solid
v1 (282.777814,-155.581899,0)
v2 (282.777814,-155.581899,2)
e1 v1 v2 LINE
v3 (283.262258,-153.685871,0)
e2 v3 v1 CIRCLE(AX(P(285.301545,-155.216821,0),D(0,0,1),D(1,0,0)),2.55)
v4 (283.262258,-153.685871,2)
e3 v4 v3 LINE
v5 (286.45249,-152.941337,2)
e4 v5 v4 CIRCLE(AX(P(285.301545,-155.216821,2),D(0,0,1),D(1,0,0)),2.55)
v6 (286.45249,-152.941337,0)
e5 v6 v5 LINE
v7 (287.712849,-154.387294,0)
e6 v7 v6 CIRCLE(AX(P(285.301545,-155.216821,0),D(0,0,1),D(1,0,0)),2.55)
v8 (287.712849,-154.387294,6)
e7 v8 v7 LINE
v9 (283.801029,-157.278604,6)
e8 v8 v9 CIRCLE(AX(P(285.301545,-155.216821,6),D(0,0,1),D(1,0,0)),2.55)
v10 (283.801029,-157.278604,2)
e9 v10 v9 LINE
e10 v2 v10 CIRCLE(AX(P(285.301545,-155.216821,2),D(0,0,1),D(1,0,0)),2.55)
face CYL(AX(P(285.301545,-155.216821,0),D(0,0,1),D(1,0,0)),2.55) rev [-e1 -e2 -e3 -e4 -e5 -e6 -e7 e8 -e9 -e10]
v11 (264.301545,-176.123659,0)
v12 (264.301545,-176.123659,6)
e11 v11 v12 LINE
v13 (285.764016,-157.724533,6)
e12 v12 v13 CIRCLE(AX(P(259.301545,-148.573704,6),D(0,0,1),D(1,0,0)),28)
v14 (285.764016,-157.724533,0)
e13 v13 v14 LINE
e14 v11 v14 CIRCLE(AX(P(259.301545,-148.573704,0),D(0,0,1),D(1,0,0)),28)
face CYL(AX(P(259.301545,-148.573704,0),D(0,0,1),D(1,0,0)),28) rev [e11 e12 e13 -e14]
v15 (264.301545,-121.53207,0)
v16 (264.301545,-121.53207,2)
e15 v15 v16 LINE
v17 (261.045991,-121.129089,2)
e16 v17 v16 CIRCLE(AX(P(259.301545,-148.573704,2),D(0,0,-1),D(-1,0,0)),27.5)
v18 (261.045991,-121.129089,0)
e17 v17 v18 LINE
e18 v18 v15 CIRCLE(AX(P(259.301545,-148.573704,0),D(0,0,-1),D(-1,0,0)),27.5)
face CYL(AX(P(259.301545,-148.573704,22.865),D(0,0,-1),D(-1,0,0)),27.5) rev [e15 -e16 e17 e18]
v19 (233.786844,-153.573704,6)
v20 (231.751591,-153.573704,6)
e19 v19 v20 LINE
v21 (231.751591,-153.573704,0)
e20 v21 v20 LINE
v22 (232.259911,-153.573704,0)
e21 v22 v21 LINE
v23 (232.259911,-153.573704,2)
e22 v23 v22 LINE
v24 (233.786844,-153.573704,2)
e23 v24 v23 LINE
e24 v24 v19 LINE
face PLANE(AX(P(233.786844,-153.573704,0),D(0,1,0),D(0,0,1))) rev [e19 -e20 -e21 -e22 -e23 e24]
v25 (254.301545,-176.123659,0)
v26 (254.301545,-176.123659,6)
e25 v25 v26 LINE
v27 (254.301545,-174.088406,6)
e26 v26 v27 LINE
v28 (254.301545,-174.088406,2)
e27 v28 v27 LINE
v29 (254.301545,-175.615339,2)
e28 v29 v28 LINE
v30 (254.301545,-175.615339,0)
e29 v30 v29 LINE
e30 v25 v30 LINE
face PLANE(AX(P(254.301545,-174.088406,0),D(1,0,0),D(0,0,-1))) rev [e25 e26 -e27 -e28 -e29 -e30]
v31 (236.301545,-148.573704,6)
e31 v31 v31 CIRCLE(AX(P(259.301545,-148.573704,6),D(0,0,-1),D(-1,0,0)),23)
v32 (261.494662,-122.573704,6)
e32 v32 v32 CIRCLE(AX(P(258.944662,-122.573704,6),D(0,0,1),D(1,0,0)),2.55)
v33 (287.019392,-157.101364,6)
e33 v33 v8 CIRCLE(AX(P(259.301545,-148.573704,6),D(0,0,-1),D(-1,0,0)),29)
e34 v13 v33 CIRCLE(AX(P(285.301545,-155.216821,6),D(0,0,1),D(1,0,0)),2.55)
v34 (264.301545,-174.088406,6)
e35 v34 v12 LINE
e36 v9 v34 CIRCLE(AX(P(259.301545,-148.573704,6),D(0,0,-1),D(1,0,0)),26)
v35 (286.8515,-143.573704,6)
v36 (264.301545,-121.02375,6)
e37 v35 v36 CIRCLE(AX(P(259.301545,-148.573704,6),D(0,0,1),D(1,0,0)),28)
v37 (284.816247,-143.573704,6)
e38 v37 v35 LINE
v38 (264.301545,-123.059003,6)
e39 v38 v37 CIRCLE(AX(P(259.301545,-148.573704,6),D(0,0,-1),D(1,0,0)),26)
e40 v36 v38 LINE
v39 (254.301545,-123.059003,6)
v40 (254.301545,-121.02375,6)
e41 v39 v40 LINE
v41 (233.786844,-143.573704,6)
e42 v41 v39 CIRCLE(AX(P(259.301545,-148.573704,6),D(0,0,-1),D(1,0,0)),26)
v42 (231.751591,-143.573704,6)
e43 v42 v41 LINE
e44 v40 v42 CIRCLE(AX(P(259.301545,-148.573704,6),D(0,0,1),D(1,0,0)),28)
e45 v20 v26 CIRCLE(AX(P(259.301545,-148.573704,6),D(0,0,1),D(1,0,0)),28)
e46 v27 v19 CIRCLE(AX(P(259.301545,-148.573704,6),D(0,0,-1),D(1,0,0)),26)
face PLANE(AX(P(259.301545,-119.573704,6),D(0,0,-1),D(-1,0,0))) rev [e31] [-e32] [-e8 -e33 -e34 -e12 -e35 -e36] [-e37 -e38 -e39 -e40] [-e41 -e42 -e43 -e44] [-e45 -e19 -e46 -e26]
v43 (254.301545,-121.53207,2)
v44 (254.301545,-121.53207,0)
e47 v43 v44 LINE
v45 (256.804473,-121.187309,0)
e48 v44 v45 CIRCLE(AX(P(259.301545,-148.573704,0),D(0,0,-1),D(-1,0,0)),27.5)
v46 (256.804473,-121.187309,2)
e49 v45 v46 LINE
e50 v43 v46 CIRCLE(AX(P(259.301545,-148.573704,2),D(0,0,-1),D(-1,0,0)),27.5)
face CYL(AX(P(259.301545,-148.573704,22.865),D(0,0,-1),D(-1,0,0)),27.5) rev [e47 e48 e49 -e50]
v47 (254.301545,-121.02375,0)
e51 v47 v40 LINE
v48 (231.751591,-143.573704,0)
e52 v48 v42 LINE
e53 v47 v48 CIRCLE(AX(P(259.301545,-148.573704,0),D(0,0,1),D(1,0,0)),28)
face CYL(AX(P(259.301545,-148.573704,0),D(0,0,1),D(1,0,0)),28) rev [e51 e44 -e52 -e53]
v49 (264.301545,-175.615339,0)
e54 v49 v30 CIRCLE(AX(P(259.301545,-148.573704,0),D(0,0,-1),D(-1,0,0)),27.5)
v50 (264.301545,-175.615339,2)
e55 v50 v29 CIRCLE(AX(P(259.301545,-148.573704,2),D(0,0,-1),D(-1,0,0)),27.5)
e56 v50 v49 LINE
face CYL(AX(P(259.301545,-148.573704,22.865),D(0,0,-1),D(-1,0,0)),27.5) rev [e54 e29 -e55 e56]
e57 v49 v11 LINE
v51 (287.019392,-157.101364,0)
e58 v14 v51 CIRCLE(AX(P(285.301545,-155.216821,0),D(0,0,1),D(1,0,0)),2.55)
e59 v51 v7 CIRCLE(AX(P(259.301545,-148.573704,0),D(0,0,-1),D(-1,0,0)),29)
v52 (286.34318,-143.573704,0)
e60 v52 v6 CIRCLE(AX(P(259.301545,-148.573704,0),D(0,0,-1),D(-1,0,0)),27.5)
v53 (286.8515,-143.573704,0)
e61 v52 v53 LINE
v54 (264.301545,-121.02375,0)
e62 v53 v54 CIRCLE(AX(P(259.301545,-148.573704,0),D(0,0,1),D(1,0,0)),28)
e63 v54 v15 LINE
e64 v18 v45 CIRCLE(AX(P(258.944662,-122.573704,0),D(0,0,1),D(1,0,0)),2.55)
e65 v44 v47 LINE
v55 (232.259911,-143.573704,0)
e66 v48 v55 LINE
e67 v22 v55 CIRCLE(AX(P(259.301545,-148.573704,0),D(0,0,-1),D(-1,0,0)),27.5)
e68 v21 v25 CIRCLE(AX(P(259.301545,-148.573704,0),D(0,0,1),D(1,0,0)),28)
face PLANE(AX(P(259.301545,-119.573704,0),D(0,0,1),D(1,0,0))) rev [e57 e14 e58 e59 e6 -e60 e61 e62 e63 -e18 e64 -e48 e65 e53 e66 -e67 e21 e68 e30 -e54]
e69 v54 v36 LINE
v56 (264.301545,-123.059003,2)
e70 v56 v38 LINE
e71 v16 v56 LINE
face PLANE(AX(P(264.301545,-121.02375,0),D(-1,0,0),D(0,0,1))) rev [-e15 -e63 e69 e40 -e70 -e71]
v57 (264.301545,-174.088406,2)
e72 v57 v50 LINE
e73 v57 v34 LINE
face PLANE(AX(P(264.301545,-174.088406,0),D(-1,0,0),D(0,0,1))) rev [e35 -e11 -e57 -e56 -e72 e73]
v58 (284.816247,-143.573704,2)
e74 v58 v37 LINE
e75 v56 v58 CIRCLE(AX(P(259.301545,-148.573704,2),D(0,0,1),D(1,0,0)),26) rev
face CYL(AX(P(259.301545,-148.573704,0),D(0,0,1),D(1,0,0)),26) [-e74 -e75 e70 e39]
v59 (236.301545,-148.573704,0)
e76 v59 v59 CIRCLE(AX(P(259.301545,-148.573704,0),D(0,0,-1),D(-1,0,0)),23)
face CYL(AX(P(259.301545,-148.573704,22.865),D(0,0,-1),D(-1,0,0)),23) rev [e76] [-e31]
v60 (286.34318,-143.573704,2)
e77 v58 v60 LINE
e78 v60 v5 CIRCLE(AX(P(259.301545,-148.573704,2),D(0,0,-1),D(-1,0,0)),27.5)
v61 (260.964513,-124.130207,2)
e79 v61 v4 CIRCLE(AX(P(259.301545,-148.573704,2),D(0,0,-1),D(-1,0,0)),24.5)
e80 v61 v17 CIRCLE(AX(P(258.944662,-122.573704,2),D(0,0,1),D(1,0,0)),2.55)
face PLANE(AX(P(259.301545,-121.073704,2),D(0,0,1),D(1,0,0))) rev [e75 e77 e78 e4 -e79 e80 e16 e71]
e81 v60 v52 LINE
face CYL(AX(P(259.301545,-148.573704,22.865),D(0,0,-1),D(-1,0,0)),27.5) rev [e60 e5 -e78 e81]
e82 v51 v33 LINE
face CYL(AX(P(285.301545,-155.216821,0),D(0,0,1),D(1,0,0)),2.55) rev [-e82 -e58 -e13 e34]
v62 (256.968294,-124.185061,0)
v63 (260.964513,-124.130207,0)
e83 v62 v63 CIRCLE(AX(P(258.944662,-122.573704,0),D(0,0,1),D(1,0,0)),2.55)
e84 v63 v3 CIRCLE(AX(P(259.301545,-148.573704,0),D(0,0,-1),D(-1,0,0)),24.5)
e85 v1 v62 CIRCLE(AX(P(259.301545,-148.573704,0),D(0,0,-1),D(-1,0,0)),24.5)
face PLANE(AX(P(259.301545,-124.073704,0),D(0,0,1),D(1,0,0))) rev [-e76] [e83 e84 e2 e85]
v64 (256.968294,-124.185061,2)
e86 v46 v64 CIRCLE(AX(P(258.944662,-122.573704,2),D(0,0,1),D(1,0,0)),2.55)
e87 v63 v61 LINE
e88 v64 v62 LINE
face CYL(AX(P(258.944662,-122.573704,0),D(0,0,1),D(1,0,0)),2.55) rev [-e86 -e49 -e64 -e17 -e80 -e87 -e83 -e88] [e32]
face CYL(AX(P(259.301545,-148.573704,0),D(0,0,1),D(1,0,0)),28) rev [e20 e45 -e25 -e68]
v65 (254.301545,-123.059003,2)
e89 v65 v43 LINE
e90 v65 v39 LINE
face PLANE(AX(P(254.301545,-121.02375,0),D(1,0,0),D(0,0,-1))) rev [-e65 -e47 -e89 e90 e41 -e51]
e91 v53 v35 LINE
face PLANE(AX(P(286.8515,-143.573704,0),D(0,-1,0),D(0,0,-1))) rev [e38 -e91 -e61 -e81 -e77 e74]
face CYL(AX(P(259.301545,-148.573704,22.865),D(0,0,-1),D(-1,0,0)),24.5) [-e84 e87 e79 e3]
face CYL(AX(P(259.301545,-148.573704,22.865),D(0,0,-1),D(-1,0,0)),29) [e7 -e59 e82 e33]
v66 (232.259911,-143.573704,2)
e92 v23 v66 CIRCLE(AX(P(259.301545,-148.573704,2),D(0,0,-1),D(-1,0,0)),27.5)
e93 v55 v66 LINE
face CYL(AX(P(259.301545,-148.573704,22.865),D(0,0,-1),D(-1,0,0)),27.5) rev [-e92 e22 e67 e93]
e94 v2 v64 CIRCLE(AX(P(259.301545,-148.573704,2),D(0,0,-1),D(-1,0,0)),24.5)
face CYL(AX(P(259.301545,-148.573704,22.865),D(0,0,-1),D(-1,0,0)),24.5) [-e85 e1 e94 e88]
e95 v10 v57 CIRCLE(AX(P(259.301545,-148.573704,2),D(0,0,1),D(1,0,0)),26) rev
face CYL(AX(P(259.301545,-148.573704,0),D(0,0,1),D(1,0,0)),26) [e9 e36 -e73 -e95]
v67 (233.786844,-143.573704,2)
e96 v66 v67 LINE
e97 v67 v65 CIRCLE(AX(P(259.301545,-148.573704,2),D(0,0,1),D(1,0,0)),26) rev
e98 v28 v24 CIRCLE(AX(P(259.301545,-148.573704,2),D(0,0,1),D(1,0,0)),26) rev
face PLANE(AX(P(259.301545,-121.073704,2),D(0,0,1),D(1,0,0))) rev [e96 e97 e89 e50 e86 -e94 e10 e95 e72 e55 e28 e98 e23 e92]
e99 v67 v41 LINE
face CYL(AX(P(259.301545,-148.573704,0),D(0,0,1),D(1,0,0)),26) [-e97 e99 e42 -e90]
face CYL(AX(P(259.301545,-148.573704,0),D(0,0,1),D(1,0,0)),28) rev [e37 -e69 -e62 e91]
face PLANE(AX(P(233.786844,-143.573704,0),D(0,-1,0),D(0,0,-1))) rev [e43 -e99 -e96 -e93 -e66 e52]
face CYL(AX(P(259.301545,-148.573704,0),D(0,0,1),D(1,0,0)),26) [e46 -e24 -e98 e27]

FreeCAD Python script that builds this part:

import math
import FreeCAD as App
import Part
import Sketcher
from FreeCAD import Vector
Q = App.Units.Quantity

doc = App.newDocument("Part")
body = doc.addObject("PartDesign::Body", "Body")

sketch1 = doc.addObject("Sketcher::SketchObject", "Sketch")
body.addObject(sketch1)
sketch1.AttachmentSupport = (doc.YZ_Plane, [""])
sketch1.MapMode = "FlatFace"
sketch1.AttachmentOffset = App.Placement(Vector(0, 0, 259.301545), App.Rotation())
sketch1.addGeometry([
    Part.LineSegment(Vector(-124.1, 0, 0), Vector(-125.6, 0, 0)),
    Part.LineSegment(Vector(-125.6, 0, 0), Vector(-125.6, 6, 0)),
    Part.LineSegment(Vector(-125.6, 6, 0), Vector(-119.6, 6, 0)),
    Part.LineSegment(Vector(-119.6, 6, 0), Vector(-119.6, 0, 0)),
    Part.LineSegment(Vector(-119.6, 0, 0), Vector(-121.1, 0, 0)),
    Part.LineSegment(Vector(-121.1, 0, 0), Vector(-121.1, 2, 0)),
    Part.LineSegment(Vector(-121.1, 2, 0), Vector(-124.1, 2, 0)),
    Part.LineSegment(Vector(-124.1, 2, 0), Vector(-124.1, 0, 0)),
], False)
sketch1.addGeometry(Part.LineSegment(Vector(-148.6, 0, 0), Vector(-148.6, 6, 0)), True)
sketch1.addConstraint([
    Sketcher.Constraint("Coincident", 0, 2, 1, 1),
    Sketcher.Constraint("Coincident", 1, 2, 2, 1),
    Sketcher.Constraint("Coincident", 2, 2, 3, 1),
    Sketcher.Constraint("Coincident", 3, 2, 4, 1),
    Sketcher.Constraint("Coincident", 4, 2, 5, 1),
    Sketcher.Constraint("Coincident", 5, 2, 6, 1),
    Sketcher.Constraint("Coincident", 6, 2, 7, 1),
    Sketcher.Constraint("Coincident", 7, 2, 0, 1),
    Sketcher.Constraint("Horizontal", 0),
    Sketcher.Constraint("Vertical", 1),
    Sketcher.Constraint("Horizontal", 2),
    Sketcher.Constraint("Vertical", 3),
    Sketcher.Constraint("Horizontal", 4),
    Sketcher.Constraint("Vertical", 5),
    Sketcher.Constraint("Horizontal", 6),
    Sketcher.Constraint("Vertical", 7),
    Sketcher.Constraint("Vertical", 8),
    Sketcher.Constraint("PointOnObject", 0, 2, -1),
    Sketcher.Constraint("PointOnObject", 3, 2, -1),
    Sketcher.Constraint("PointOnObject", 8, 1, -1),
    Sketcher.Constraint("Horizontal", 2, 2, 8, 2),
    Sketcher.Constraint("Equal", 0, 4),
    Sketcher.Constraint("Equal", 2, 1),
    Sketcher.Constraint("DistanceX", 2, 1, 2, 2, Q("6 mm")),
    Sketcher.Constraint("DistanceX", 6, 2, 6, 1, Q("3 mm")),
    Sketcher.Constraint("DistanceY", 5, 1, 5, 2, Q("2 mm")),
    Sketcher.Constraint("DistanceX", 8, 1, 0, 2, Q("23 mm")),
    Sketcher.Constraint("DistanceX", 0, 2, -1, 1, Q("125.573704 mm")),
])
revolution = doc.addObject("PartDesign::Revolution", "Revolution")
body.addObject(revolution)
revolution.Profile = sketch1
revolution.ReferenceAxis = (sketch1, ["Axis0"])
revolution.Angle = 360

sketch2 = doc.addObject("Sketcher::SketchObject", "Sketch001")
body.addObject(sketch2)
sketch2.AttachmentSupport = (doc.XY_Plane, [""])
sketch2.MapMode = "FlatFace"
sketch2.AttachmentOffset = App.Placement(Vector(0, 0, 6), App.Rotation())
sketch2.addGeometry([
    Part.LineSegment(Vector(254.3, -176.1, 0), Vector(254.3, -174.1, 0)),
    Part.ArcOfCircle(Part.Circle(Vector(259.3, -148.6, 0), Vector(0, 0, 1), 26), math.radians(-169), math.radians(-101)),
    Part.LineSegment(Vector(233.8, -153.6, 0), Vector(231.8, -153.6, 0)),
    Part.ArcOfCircle(Part.Circle(Vector(259.3, -148.6, 0), Vector(0, 0, 1), 28), math.radians(-170), math.radians(-100)),
    Part.LineSegment(Vector(264.3, -174.1, 0), Vector(264.3, -176.1, 0)),
    Part.ArcOfCircle(Part.Circle(Vector(259.3, -148.6, 0), Vector(0, 0, 1), 28), math.radians(-80), math.radians(-10)),
    Part.LineSegment(Vector(286.9, -153.6, 0), Vector(284.8, -153.6, 0)),
    Part.ArcOfCircle(Part.Circle(Vector(259.3, -148.6, 0), Vector(0, 0, 1), 26), math.radians(-79), math.radians(-11)),
    Part.LineSegment(Vector(284.8, -143.6, 0), Vector(286.9, -143.6, 0)),
    Part.ArcOfCircle(Part.Circle(Vector(259.3, -148.6, 0), Vector(0, 0, 1), 28), math.radians(10), math.radians(80)),
    Part.LineSegment(Vector(264.3, -121, 0), Vector(264.3, -123.1, 0)),
    Part.ArcOfCircle(Part.Circle(Vector(259.3, -148.6, 0), Vector(0, 0, 1), 26), math.radians(11), math.radians(79)),
    Part.LineSegment(Vector(254.3, -123.1, 0), Vector(254.3, -121, 0)),
    Part.ArcOfCircle(Part.Circle(Vector(259.3, -148.6, 0), Vector(0, 0, 1), 28), math.radians(100), math.radians(170)),
    Part.LineSegment(Vector(231.8, -143.6, 0), Vector(233.8, -143.6, 0)),
    Part.ArcOfCircle(Part.Circle(Vector(259.3, -148.6, 0), Vector(0, 0, 1), 26), math.radians(101), math.radians(169)),
], False)
sketch2.addConstraint([
    Sketcher.Constraint("Coincident", 0, 2, 1, 2),
    Sketcher.Constraint("Coincident", 1, 1, 2, 1),
    Sketcher.Constraint("Coincident", 2, 2, 3, 1),
    Sketcher.Constraint("Coincident", 3, 2, 0, 1),
    Sketcher.Constraint("Coincident", 4, 2, 5, 1),
    Sketcher.Constraint("Coincident", 5, 2, 6, 1),
    Sketcher.Constraint("Coincident", 6, 2, 7, 2),
    Sketcher.Constraint("Coincident", 7, 1, 4, 1),
    Sketcher.Constraint("Coincident", 8, 2, 9, 1),
    Sketcher.Constraint("Coincident", 9, 2, 10, 1),
    Sketcher.Constraint("Coincident", 10, 2, 11, 2),
    Sketcher.Constraint("Coincident", 11, 1, 8, 1),
    Sketcher.Constraint("Coincident", 12, 2, 13, 1),
    Sketcher.Constraint("Coincident", 13, 2, 14, 1),
    Sketcher.Constraint("Coincident", 14, 2, 15, 2),
    Sketcher.Constraint("Coincident", 15, 1, 12, 1),
    Sketcher.Constraint("Vertical", 0),
    Sketcher.Constraint("Horizontal", 2),
    Sketcher.Constraint("Vertical", 4),
    Sketcher.Constraint("Horizontal", 6),
    Sketcher.Constraint("Horizontal", 8),
    Sketcher.Constraint("Vertical", 10),
    Sketcher.Constraint("Vertical", 12),
    Sketcher.Constraint("Horizontal", 14),
    Sketcher.Constraint("Coincident", 3, 3, 1, 3),
    Sketcher.Constraint("Coincident", 5, 3, 1, 3),
    Sketcher.Constraint("Coincident", 7, 3, 1, 3),
    Sketcher.Constraint("Coincident", 9, 3, 1, 3),
    Sketcher.Constraint("Coincident", 11, 3, 1, 3),
    Sketcher.Constraint("Coincident", 13, 3, 1, 3),
    Sketcher.Constraint("Coincident", 15, 3, 1, 3),
    Sketcher.Constraint("Equal", 3, 5),
    Sketcher.Constraint("Equal", 1, 7),
    Sketcher.Constraint("Equal", 5, 9),
    Sketcher.Constraint("Equal", 7, 11),
    Sketcher.Constraint("Equal", 9, 13),
    Sketcher.Constraint("Equal", 11, 15),
    Sketcher.Constraint("Horizontal", 3, 2, 4, 2),
    Sketcher.Constraint("Horizontal", 2, 2, 5, 2),
    Sketcher.Constraint("Horizontal", 9, 2, 12, 2),
    Sketcher.Constraint("Horizontal", 11, 1, 13, 2),
    Sketcher.Constraint("Vertical", 5, 2, 8, 2),
    Sketcher.Constraint("Vertical", 7, 1, 9, 2),
    Sketcher.Constraint("Equal", 14, 0),
    Sketcher.Constraint("Radius", 1, Q("26 mm")),
    Sketcher.Constraint("Radius", 3, Q("28 mm")),
    Sketcher.Constraint("DistanceX", 0, 2, 9, 3, Q("5 mm")),
    Sketcher.Constraint("DistanceX", -1, 1, 5, 2, Q("286.8515 mm")),
    Sketcher.Constraint("DistanceY", 3, 2, -1, 1, Q("176.123659 mm")),
])
pocket1 = doc.addObject("PartDesign::Pocket", "Pocket")
body.addObject(pocket1)
pocket1.Profile = sketch2
pocket1.Type = "ThroughAll"

sketch3 = doc.addObject("Sketcher::SketchObject", "Sketch002")
body.addObject(sketch3)
sketch3.AttachmentSupport = (doc.XY_Plane, [""])
sketch3.MapMode = "FlatFace"
sketch3.AttachmentOffset = App.Placement(Vector(0, 0, 6), App.Rotation())
sketch3.addGeometry([
    Part.Circle(Vector(258.9, -122.6, 0), Vector(0, 0, 1), 2.5),
    Part.Circle(Vector(285.3, -155.2, 0), Vector(0, 0, 1), 2.5),
    Part.Circle(Vector(252.7, -181.6, 0), Vector(0, 0, 1), 2.5),
    Part.Circle(Vector(226.3, -148.9, 0), Vector(0, 0, 1), 2.5),
], False)
sketch3.addConstraint([
    Sketcher.Constraint("Equal", 0, 1),
    Sketcher.Constraint("Equal", 1, 2),
    Sketcher.Constraint("Equal", 2, 3),
    Sketcher.Constraint("Diameter", 0, Q("5.1 mm")),
    Sketcher.Constraint("DistanceY", 2, 3, 0, 3, Q("59 mm")),
    Sketcher.Constraint("DistanceX", 3, 3, 1, 3, Q("59 mm")),
    Sketcher.Constraint("DistanceX", -1, 1, 0, 3, Q("258.944662 mm")),
    Sketcher.Constraint("DistanceY", 1, 3, -1, 1, Q("155.216821 mm")),
    Sketcher.Constraint("DistanceX", -1, 1, 2, 3, Q("252.658429 mm")),
    Sketcher.Constraint("DistanceY", 0, 3, -1, 1, Q("122.573704 mm")),
    Sketcher.Constraint("DistanceX", -1, 1, 1, 3, Q("285.301545 mm")),
    Sketcher.Constraint("DistanceY", 3, 3, -1, 1, Q("148.930588 mm")),
])
pocket2 = doc.addObject("PartDesign::Pocket", "Pocket001")
body.addObject(pocket2)
pocket2.Profile = sketch3
pocket2.Type = "ThroughAll"

doc.recompute()
